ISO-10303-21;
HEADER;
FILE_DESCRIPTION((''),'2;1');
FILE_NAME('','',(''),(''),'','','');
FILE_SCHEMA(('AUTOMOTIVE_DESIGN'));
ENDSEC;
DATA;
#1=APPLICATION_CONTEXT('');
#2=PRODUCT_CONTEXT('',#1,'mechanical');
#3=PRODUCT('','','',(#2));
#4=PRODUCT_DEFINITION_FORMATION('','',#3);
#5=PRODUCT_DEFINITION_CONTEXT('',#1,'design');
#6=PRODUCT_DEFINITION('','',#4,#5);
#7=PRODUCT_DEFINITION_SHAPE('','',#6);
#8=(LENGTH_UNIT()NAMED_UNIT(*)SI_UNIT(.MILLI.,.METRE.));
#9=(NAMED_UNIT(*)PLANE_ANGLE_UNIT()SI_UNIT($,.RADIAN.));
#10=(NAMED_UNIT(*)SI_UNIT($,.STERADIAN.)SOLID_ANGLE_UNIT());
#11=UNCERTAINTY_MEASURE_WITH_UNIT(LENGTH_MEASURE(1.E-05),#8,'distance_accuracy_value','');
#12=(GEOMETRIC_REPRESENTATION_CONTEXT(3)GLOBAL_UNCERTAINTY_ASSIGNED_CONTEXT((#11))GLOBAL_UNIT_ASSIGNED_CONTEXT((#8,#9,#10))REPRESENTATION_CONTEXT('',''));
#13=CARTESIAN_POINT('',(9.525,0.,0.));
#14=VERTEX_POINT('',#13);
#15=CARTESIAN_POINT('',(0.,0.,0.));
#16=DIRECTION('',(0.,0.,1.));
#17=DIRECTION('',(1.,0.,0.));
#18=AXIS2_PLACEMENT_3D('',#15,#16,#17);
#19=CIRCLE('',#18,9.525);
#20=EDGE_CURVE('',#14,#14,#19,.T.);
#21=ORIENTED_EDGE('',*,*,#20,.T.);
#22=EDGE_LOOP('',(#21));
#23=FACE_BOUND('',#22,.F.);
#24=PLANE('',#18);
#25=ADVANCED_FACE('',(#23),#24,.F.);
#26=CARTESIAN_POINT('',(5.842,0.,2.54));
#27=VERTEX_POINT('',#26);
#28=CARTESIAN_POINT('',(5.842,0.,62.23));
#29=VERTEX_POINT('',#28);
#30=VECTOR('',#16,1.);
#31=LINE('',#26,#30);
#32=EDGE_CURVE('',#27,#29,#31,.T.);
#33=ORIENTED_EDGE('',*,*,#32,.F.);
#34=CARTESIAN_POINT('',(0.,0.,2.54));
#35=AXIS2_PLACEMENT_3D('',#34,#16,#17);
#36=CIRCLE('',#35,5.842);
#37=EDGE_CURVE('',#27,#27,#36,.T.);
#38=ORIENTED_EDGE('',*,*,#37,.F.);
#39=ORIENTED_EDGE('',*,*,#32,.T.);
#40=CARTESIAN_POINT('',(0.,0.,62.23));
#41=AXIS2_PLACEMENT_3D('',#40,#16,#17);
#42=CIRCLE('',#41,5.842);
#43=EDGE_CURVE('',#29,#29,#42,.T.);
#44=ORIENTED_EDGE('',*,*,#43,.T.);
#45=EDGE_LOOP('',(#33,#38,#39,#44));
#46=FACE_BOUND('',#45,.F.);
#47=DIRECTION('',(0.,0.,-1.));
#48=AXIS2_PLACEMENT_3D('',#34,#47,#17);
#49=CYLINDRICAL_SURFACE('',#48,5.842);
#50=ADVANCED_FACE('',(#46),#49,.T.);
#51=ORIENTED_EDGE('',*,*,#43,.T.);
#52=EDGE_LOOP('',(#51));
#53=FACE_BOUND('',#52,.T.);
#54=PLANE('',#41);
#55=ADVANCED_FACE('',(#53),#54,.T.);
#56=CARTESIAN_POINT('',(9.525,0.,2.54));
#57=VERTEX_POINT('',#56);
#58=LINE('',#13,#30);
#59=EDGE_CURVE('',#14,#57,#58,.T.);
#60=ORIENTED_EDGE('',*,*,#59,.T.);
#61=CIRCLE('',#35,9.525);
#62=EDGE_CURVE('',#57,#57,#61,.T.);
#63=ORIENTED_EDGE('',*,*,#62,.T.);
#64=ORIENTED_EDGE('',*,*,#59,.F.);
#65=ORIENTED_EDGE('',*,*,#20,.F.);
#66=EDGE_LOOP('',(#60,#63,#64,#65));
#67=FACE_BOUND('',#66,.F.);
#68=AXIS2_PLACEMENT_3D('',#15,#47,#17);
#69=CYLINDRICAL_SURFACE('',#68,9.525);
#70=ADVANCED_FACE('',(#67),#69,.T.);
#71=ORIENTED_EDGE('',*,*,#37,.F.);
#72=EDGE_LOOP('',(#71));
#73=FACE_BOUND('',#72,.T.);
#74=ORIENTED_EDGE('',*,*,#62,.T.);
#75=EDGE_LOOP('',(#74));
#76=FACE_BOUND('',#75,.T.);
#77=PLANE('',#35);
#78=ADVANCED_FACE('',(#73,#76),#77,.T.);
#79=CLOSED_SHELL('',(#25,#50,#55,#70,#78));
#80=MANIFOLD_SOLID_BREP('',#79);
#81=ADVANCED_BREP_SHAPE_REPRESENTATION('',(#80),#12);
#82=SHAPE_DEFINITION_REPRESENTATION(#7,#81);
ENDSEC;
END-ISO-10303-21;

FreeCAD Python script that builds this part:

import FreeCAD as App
import Part
import Sketcher

V = App.Vector
Q = App.Units.Quantity

doc = App.newDocument("Part")
body = doc.addObject("PartDesign::Body", "Body")

sketch1 = body.newObject("Sketcher::SketchObject", "Sketch")
sketch1.AttachmentSupport = (doc.getObject("XY_Plane"), [""])
sketch1.MapMode = "FlatFace"
sketch1.addGeometry(Part.Circle(V(0, 0, 0), V(0, 0, 1), 10), False)
sketch1.addConstraint([
    Sketcher.Constraint("Coincident", 0, 3, -1, 1),
    Sketcher.Constraint("Diameter", 0, Q("0.75 in")),
])
pad1 = body.newObject("PartDesign::Pad", "Pad")
pad1.Profile = sketch1
pad1.Length = Q("0.1 in")

sketch2 = body.newObject("Sketcher::SketchObject", "Sketch001")
sketch2.AttachmentSupport = (doc.getObject("XY_Plane"), [""])
sketch2.MapMode = "FlatFace"
sketch2.AttachmentOffset = App.Placement(V(0, 0, 0.1 * 25.4), App.Rotation())
sketch2.addGeometry(Part.Circle(V(0, 0, 0), V(0, 0, 1), 6), False)
sketch2.addConstraint([
    Sketcher.Constraint("Coincident", 0, 3, -1, 1),
    Sketcher.Constraint("Diameter", 0, Q("0.46 in")),
])
pad2 = body.newObject("PartDesign::Pad", "Pad001")
pad2.Profile = sketch2
pad2.Length = Q("2.35 in")

doc.recompute()
